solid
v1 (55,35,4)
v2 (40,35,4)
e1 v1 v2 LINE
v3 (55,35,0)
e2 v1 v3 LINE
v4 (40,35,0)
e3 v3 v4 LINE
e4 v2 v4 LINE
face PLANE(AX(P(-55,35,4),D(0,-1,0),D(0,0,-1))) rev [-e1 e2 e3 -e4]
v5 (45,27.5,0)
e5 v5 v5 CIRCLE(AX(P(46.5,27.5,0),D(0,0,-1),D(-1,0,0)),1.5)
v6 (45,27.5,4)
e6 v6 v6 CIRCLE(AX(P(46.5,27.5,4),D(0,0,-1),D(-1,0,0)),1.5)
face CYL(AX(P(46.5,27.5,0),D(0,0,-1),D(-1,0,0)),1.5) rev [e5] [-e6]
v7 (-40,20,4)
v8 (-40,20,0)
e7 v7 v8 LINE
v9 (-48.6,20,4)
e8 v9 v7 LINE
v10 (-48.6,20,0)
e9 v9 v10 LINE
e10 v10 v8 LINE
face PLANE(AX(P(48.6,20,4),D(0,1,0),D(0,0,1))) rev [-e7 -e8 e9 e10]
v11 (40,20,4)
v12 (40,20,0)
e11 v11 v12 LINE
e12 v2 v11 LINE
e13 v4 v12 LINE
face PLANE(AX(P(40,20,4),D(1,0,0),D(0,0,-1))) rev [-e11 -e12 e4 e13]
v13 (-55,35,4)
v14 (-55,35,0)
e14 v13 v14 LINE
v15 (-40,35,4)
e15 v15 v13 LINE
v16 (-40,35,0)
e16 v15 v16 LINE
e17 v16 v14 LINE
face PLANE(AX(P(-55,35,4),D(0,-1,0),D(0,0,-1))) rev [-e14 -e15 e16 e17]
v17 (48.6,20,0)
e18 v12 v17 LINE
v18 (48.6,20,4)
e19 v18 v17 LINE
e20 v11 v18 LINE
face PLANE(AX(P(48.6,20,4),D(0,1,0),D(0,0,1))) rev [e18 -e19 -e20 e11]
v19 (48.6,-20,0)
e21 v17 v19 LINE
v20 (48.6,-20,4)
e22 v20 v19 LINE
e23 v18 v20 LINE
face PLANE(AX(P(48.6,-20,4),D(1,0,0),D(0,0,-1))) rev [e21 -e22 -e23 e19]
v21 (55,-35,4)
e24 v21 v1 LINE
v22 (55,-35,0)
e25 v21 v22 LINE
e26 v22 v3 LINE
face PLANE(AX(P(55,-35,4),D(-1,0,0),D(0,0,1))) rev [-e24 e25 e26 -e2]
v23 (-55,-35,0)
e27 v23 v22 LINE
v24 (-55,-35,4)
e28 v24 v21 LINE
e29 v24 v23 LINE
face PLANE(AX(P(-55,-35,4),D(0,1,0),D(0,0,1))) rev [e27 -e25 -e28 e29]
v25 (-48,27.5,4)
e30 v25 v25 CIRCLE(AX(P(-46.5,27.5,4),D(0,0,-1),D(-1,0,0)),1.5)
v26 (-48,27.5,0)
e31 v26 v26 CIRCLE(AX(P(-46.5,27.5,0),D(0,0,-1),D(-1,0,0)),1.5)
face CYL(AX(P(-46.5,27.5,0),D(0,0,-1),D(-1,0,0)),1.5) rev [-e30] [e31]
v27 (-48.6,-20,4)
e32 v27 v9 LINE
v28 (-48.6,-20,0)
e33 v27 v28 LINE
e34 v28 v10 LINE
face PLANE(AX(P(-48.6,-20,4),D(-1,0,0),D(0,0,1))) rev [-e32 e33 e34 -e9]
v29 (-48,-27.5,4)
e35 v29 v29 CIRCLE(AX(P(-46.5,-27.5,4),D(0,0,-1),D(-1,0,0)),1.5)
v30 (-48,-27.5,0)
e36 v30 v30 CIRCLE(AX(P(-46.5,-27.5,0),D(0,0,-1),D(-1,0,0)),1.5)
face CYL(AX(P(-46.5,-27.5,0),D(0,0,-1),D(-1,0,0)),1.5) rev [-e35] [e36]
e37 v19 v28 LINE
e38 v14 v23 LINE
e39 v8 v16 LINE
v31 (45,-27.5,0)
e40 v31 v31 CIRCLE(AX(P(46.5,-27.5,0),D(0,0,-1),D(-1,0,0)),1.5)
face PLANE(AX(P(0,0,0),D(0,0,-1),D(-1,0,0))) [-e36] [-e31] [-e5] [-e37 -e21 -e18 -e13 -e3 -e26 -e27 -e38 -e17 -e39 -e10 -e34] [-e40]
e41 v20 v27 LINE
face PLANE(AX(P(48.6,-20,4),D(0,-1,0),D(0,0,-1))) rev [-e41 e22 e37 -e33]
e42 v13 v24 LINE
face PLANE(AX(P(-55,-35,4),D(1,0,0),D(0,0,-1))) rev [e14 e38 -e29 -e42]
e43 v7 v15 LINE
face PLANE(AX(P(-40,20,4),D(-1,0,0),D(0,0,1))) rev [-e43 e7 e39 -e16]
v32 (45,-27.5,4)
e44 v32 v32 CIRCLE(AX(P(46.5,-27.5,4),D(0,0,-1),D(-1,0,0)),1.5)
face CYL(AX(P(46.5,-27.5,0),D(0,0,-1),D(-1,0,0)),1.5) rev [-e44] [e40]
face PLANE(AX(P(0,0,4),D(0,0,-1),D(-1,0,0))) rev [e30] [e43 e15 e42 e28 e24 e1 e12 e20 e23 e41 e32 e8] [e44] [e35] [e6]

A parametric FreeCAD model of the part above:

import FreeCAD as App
import Part
import Sketcher

V = App.Vector

doc = App.newDocument("Part")
body = doc.addObject("PartDesign::Body", "Body")

sketch1 = body.newObject("Sketcher::SketchObject", "Sketch")
sketch1.AttachmentSupport = (doc.getObject("XY_Plane"), [""])
sketch1.MapMode = "FlatFace"
sketch1.addGeometry([
    Part.LineSegment(V(-55, 35, 0), V(-55, -35, 0)),
    Part.LineSegment(V(-55, -35, 0), V(55, -35, 0)),
    Part.LineSegment(V(55, -35, 0), V(55, 35, 0)),
    Part.LineSegment(V(55, 35, 0), V(-55, 35, 0)),
], False)
sketch1.addConstraint([
    Sketcher.Constraint("Coincident", 0, 2, 1, 1),
    Sketcher.Constraint("Coincident", 1, 2, 2, 1),
    Sketcher.Constraint("Coincident", 2, 2, 3, 1),
    Sketcher.Constraint("Coincident", 3, 2, 0, 1),
    Sketcher.Constraint("Vertical", 0),
    Sketcher.Constraint("Horizontal", 1),
    Sketcher.Constraint("Vertical", 2),
    Sketcher.Constraint("Horizontal", 3),
    Sketcher.Constraint("Symmetric", 0, 2, 2, 2, -1, 1),
    Sketcher.Constraint("DistanceX", 1, 1, 1, 2, 110.0),
    Sketcher.Constraint("DistanceY", 0, 2, 0, 1, 70.0),
])
pad1 = body.newObject("PartDesign::Pad", "Pad")
pad1.Profile = sketch1
pad1.Length = 4

sketch2 = body.newObject("Sketcher::SketchObject", "Sketch001")
sketch2.AttachmentSupport = (doc.getObject("XY_Plane"), [""])
sketch2.MapMode = "FlatFace"
sketch2.addGeometry([
    Part.LineSegment(V(49, 20, 0), V(49, -20, 0)),
    Part.LineSegment(V(49, -20, 0), V(-49, -20, 0)),
    Part.LineSegment(V(-49, -20, 0), V(-49, 20, 0)),
    Part.LineSegment(V(-49, 20, 0), V(49, 20, 0)),
], False)
sketch2.addConstraint([
    Sketcher.Constraint("Coincident", 0, 2, 1, 1),
    Sketcher.Constraint("Coincident", 1, 2, 2, 1),
    Sketcher.Constraint("Coincident", 2, 2, 3, 1),
    Sketcher.Constraint("Coincident", 3, 2, 0, 1),
    Sketcher.Constraint("Vertical", 0),
    Sketcher.Constraint("Horizontal", 1),
    Sketcher.Constraint("Vertical", 2),
    Sketcher.Constraint("Horizontal", 3),
    Sketcher.Constraint("Symmetric", 0, 2, 2, 2, -1, 1),
    Sketcher.Constraint("DistanceY", 0, 2, 0, 1, 40.0),
    Sketcher.Constraint("DistanceX", 1, 2, 1, 1, 97.2),
])
pocket1 = body.newObject("PartDesign::Pocket", "Pocket")
pocket1.Profile = sketch2
pocket1.Type = "ThroughAll"
pocket1.Reversed = True

sketch3 = body.newObject("Sketcher::SketchObject", "Sketch002")
sketch3.AttachmentSupport = (doc.getObject("XY_Plane"), [""])
sketch3.MapMode = "FlatFace"
sketch3.addGeometry([
    Part.Circle(V(46.5, 27.5, 0), V(0, 0, 1), 1.5),
    Part.Circle(V(-46.5, 27.5, 0), V(0, 0, 1), 1.5),
    Part.Circle(V(-46.5, -27.5, 0), V(0, 0, 1), 1.5),
    Part.Circle(V(46.5, -27.5, 0), V(0, 0, 1), 1.5),
], False)
sketch3.addConstraint([
    Sketcher.Constraint("Equal", 0, 1),
    Sketcher.Constraint("Equal", 1, 2),
    Sketcher.Constraint("Equal", 2, 3),
    Sketcher.Constraint("Symmetric", 0, 3, 2, 3, -1, 1),
    Sketcher.Constraint("Symmetric", 1, 3, 3, 3, -1, 1),
    Sketcher.Constraint("Symmetric", 0, 3, 1, 3, -2),
    Sketcher.Constraint("Diameter", 0, 3.0),
    Sketcher.Constraint("DistanceX", 1, 3, 0, 3, 93.0),
    Sketcher.Constraint("DistanceY", 2, 3, 1, 3, 55.0),
])
doc.recompute()
hole = body.newObject("PartDesign::Hole", "Hole")
hole.Profile = sketch3
hole.ThreadType = "None"
hole.Diameter = 3
hole.DepthType = "ThroughAll"
hole.Reversed = True

sketch4 = body.newObject("Sketcher::SketchObject", "Sketch003")
sketch4.AttachmentSupport = (doc.getObject("XY_Plane"), [""])
sketch4.MapMode = "FlatFace"
sketch4.addGeometry([
    Part.LineSegment(V(40, 35, 0), V(40, 20, 0)),
    Part.LineSegment(V(40, 20, 0), V(-40, 20, 0)),
    Part.LineSegment(V(-40, 20, 0), V(-40, 35, 0)),
    Part.LineSegment(V(-40, 35, 0), V(40, 35, 0)),
], False)
sketch4.addConstraint([
    Sketcher.Constraint("Coincident", 0, 2, 1, 1),
    Sketcher.Constraint("Coincident", 1, 2, 2, 1),
    Sketcher.Constraint("Coincident", 2, 2, 3, 1),
    Sketcher.Constraint("Coincident", 3, 2, 0, 1),
    Sketcher.Constraint("Vertical", 0),
    Sketcher.Constraint("Horizontal", 1),
    Sketcher.Constraint("Vertical", 2),
    Sketcher.Constraint("Horizontal", 3),
    Sketcher.Constraint("DistanceX", 1, 2, 1, 1, 80.0),
    Sketcher.Constraint("DistanceY", 0, 2, 0, 1, 15.0),
    Sketcher.Constraint("DistanceX", -1, 1, 0, 2, 40.0),
    Sketcher.Constraint("DistanceY", -1, 1, 0, 2, 20.0),
])
pocket2 = body.newObject("PartDesign::Pocket", "Pocket001")
pocket2.Profile = sketch4
pocket2.Type = "ThroughAll"
pocket2.Reversed = True

doc.recompute()
